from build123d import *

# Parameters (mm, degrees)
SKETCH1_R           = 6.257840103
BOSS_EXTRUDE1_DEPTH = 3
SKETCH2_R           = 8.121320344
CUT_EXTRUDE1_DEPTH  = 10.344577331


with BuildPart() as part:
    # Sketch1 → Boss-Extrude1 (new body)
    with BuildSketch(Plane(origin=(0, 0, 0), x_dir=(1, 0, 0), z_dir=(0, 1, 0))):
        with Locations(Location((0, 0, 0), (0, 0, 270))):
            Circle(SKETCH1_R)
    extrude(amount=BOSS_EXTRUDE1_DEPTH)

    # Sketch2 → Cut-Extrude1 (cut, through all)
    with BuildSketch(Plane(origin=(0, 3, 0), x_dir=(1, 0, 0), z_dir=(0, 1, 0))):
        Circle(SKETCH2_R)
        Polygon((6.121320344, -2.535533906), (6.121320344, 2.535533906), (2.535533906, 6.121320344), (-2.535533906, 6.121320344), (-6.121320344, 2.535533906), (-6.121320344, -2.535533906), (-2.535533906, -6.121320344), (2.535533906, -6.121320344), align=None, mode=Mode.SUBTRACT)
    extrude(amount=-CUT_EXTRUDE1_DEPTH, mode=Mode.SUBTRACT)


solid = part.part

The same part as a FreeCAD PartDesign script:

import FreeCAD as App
import Part
import Sketcher
from FreeCAD import Vector

doc = App.newDocument("Part")
params = doc.addObject("Spreadsheet::Sheet", "Params")
for row, (alias, value) in enumerate([
    ("pad1_length", "3 mm"),
], start=1):
    params.set(f"A{row}", alias)
    params.set(f"B{row}", "=" + value)
    params.setAlias(f"B{row}", alias)

body = doc.addObject("PartDesign::Body", "Body")

sketch1 = body.newObject("Sketcher::SketchObject", "Sketch")
sketch1.AttachmentSupport = (doc.getObject("XZ_Plane"), [""])
sketch1.MapMode = "FlatFace"
sketch1.addGeometry(Part.Circle(Vector(0, 0, 0), Vector(0, 0, 1), 6), False)
sketch1.addConstraint([
    Sketcher.Constraint("Coincident", 0, 3, -1, 1),
    Sketcher.Constraint("Diameter", 0, 12.51568),
])
pad1 = body.newObject("PartDesign::Pad", "Pad")
pad1.Profile = sketch1
pad1.setExpression("Length", "Params.pad1_length")
pad1.Reversed = True

sketch2 = body.newObject("Sketcher::SketchObject", "Sketch001")
sketch2.AttachmentSupport = (doc.getObject("XZ_Plane"), [""])
sketch2.MapMode = "FlatFace"
sketch2.AttachmentOffset = App.Placement(Vector(0, 0, -3), App.Rotation())
sketch2.addGeometry([
    Part.Circle(Vector(0, 0, 0), Vector(0, 0, 1), 8),
    Part.LineSegment(Vector(6, -3, 0), Vector(6, 3, 0)),
    Part.LineSegment(Vector(6, 3, 0), Vector(3, 6, 0)),
    Part.LineSegment(Vector(3, 6, 0), Vector(-3, 6, 0)),
    Part.LineSegment(Vector(-3, 6, 0), Vector(-6, 3, 0)),
    Part.LineSegment(Vector(-6, 3, 0), Vector(-6, -3, 0)),
    Part.LineSegment(Vector(-6, -3, 0), Vector(-3, -6, 0)),
    Part.LineSegment(Vector(-3, -6, 0), Vector(3, -6, 0)),
    Part.LineSegment(Vector(3, -6, 0), Vector(6, -3, 0)),
], False)
sketch2.addConstraint([
    Sketcher.Constraint("Coincident", 1, 2, 2, 1),
    Sketcher.Constraint("Coincident", 2, 2, 3, 1),
    Sketcher.Constraint("Coincident", 3, 2, 4, 1),
    Sketcher.Constraint("Coincident", 4, 2, 5, 1),
    Sketcher.Constraint("Coincident", 5, 2, 6, 1),
    Sketcher.Constraint("Coincident", 6, 2, 7, 1),
    Sketcher.Constraint("Coincident", 7, 2, 8, 1),
    Sketcher.Constraint("Coincident", 8, 2, 1, 1),
    Sketcher.Constraint("Vertical", 1),
    Sketcher.Constraint("Horizontal", 3),
    Sketcher.Constraint("Vertical", 5),
    Sketcher.Constraint("Horizontal", 7),
    Sketcher.Constraint("Coincident", 0, 3, -1, 1),
    Sketcher.Constraint("Symmetric", 1, 2, 5, 2, -1, 1),
    Sketcher.Constraint("Symmetric", 2, 2, 6, 2, -1, 1),
    Sketcher.Constraint("Perpendicular", 2, 4),
    Sketcher.Constraint("Perpendicular", 6, 8),
    Sketcher.Constraint("Horizontal", 1, 2, 4, 2),
    Sketcher.Constraint("Horizontal", 5, 2, 8, 2),
    Sketcher.Constraint("Vertical", 3, 2, 6, 2),
    Sketcher.Constraint("Equal", 7, 1),
    Sketcher.Constraint("Diameter", 0, 16.242641),
    Sketcher.Constraint("DistanceX", 3, 2, 3, 1, 5.071068),
    Sketcher.Constraint("DistanceX", -1, 1, 1, 2, 6.12132),
])
pocket1 = body.newObject("PartDesign::Pocket", "Pocket")
pocket1.Profile = sketch2
pocket1.Type = "ThroughAll"
pocket1.Reversed = True

doc.recompute()
